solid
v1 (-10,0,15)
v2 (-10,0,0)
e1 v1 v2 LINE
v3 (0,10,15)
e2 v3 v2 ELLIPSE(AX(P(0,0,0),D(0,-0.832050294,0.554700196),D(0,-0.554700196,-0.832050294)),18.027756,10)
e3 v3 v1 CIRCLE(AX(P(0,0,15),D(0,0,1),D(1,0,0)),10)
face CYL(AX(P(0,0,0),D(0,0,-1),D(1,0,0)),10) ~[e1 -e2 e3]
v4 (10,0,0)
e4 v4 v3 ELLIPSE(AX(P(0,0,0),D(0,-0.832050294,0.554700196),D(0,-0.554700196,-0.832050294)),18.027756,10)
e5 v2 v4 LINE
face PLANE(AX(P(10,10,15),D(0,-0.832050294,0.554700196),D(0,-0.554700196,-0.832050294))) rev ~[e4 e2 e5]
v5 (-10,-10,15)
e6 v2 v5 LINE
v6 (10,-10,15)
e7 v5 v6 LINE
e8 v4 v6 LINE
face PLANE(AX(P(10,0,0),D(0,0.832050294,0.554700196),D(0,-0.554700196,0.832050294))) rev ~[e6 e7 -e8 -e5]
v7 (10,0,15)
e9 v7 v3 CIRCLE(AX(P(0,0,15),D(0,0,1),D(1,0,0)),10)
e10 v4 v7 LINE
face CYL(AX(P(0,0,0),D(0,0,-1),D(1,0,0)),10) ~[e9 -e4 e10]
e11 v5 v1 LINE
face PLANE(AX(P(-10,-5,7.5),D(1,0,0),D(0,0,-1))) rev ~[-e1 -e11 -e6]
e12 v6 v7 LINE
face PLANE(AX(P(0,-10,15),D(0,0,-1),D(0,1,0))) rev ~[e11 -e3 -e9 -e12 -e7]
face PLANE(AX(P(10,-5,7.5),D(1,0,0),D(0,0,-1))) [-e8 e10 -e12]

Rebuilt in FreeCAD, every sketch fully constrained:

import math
import FreeCAD as App
import Part
import Sketcher

V = App.Vector


def add_polygon(sketch, points):
    """Adds a closed chain of lines whose ends are joined by coincident constraints."""
    first, n = sketch.GeometryCount, len(points)
    for a, b in zip(points, points[1:] + points[:1]):
        sketch.addGeometry(Part.LineSegment(App.Vector(*a, 0), App.Vector(*b, 0)), False)
    for i in range(n):
        sketch.addConstraint(Sketcher.Constraint("Coincident", first + i, 2, first + (i + 1) % n, 1))

doc = App.newDocument("Part")
body = doc.addObject("PartDesign::Body", "Body")

# Sketch on XY plane
sketch1 = body.newObject("Sketcher::SketchObject", "Sketch")
sketch1.AttachmentSupport = (doc.getObject("XY_Plane"), [""])
sketch1.MapMode = "FlatFace"
sketch1.addGeometry(Part.Circle(V(0, 0, 0), V(0, 0, 1), 10), False)
sketch1.addConstraint([
    Sketcher.Constraint("Coincident", 0, 3, -1, 1),
    Sketcher.Constraint("Diameter", 0, 20.0),
])
pad1 = body.newObject("PartDesign::Pad", "Pad")
pad1.Profile = sketch1
pad1.Length = 15

# Sketch on XY plane
sketch2 = body.newObject("Sketcher::SketchObject", "Sketch001")
sketch2.AttachmentSupport = (doc.getObject("XY_Plane"), [""])
sketch2.MapMode = "FlatFace"
sketch2.AttachmentOffset = App.Placement(V(0, 0, 15), App.Rotation())
sketch2.addGeometry([
    Part.LineSegment(V(10, 0, 0), V(0, 0, 0)),
    Part.LineSegment(V(0, 0, 0), V(0, -10, 0)),
    Part.ArcOfCircle(Part.Circle(V(0, 0, 0), V(0, 0, 1), 10), math.radians(-90), math.radians(0)),
], False)
sketch2.addConstraint([
    Sketcher.Constraint("Coincident", 0, 2, 1, 1),
    Sketcher.Constraint("Coincident", 1, 2, 2, 1),
    Sketcher.Constraint("Coincident", 2, 2, 0, 1),
    Sketcher.Constraint("Horizontal", 0),
    Sketcher.Constraint("Vertical", 1),
    Sketcher.Constraint("Coincident", 2, 3, -1, 1),
    Sketcher.Constraint("Coincident", 0, 2, -1, 1),
    Sketcher.Constraint("Radius", 2, 10.0),
])
pocket1 = body.newObject("PartDesign::Pocket", "Pocket")
pocket1.Profile = sketch2
pocket1.Type = "ThroughAll"

# Sketch on YZ plane
sketch3 = body.newObject("Sketcher::SketchObject", "Sketch002")
sketch3.AttachmentSupport = (doc.getObject("YZ_Plane"), [""])
sketch3.MapMode = "FlatFace"
sketch3.AttachmentOffset = App.Placement(V(0, 0, 10), App.Rotation())
add_polygon(sketch3, [(0, 0), (10, 0), (10, 15)])  # lines 0-2
sketch3.addConstraint([
    Sketcher.Constraint("Horizontal", 0),
    Sketcher.Constraint("Vertical", 1),
    Sketcher.Constraint("Coincident", 2, 2, -1, 1),
    Sketcher.Constraint("DistanceX", 0, 1, 0, 2, 10.0),
    Sketcher.Constraint("DistanceY", 1, 1, 1, 2, 15.0),
])
pocket2 = body.newObject("PartDesign::Pocket", "Pocket001")
pocket2.Profile = sketch3
pocket2.Length = 10

# Sketch on YZ plane
sketch4 = body.newObject("Sketcher::SketchObject", "Sketch003")
sketch4.AttachmentSupport = (doc.getObject("YZ_Plane"), [""])
sketch4.MapMode = "FlatFace"
add_polygon(sketch4, [(10, 15), (0, 0), (10, 0)])  # lines 0-2
sketch4.addConstraint([
    Sketcher.Constraint("Horizontal", 1),
    Sketcher.Constraint("Vertical", 2),
    Sketcher.Constraint("Coincident", 0, 2, -1, 1),
    Sketcher.Constraint("DistanceX", 1, 1, 1, 2, 10.0),
    Sketcher.Constraint("DistanceY", 2, 1, 2, 2, 15.0),
])
pocket3 = body.newObject("PartDesign::Pocket", "Pocket002")
pocket3.Profile = sketch4
pocket3.Length = 10

# Sketch on YZ plane
sketch5 = body.newObject("Sketcher::SketchObject", "Sketch004")
sketch5.AttachmentSupport = (doc.getObject("YZ_Plane"), [""])
sketch5.MapMode = "FlatFace"
add_polygon(sketch5, [(0, 15), (-10, 15), (-10, 0), (0, 0)])  # lines 0-3
sketch5.addConstraint([
    Sketcher.Constraint("Horizontal", 0),
    Sketcher.Constraint("Vertical", 1),
    Sketcher.Constraint("Horizontal", 2),
    Sketcher.Constraint("Vertical", 3),
    Sketcher.Constraint("Coincident", 2, 2, -1, 1),
    Sketcher.Constraint("DistanceX", 0, 2, 0, 1, 10.0),
    Sketcher.Constraint("DistanceY", 1, 2, 1, 1, 15.0),
])
pad2 = body.newObject("PartDesign::Pad", "Pad001")
pad2.Profile = sketch5
pad2.Length = 20
pad2.Midplane = True

# Sketch on YZ plane
sketch6 = body.newObject("Sketcher::SketchObject", "Sketch005")
sketch6.AttachmentSupport = (doc.getObject("YZ_Plane"), [""])
sketch6.MapMode = "FlatFace"
sketch6.AttachmentOffset = App.Placement(V(0, 0, 10), App.Rotation())
add_polygon(sketch6, [(0, 0), (-10, 15), (-10, 0)])  # lines 0-2
sketch6.addConstraint([
    Sketcher.Constraint("Vertical", 1),
    Sketcher.Constraint("Horizontal", 2),
    Sketcher.Constraint("Coincident", 2, 2, -1, 1),
    Sketcher.Constraint("DistanceX", 2, 1, 2, 2, 10.0),
    Sketcher.Constraint("DistanceY", 1, 2, 1, 1, 15.0),
])
pocket4 = body.newObject("PartDesign::Pocket", "Pocket003")
pocket4.Profile = sketch6
pocket4.Length = 20

doc.recompute()
